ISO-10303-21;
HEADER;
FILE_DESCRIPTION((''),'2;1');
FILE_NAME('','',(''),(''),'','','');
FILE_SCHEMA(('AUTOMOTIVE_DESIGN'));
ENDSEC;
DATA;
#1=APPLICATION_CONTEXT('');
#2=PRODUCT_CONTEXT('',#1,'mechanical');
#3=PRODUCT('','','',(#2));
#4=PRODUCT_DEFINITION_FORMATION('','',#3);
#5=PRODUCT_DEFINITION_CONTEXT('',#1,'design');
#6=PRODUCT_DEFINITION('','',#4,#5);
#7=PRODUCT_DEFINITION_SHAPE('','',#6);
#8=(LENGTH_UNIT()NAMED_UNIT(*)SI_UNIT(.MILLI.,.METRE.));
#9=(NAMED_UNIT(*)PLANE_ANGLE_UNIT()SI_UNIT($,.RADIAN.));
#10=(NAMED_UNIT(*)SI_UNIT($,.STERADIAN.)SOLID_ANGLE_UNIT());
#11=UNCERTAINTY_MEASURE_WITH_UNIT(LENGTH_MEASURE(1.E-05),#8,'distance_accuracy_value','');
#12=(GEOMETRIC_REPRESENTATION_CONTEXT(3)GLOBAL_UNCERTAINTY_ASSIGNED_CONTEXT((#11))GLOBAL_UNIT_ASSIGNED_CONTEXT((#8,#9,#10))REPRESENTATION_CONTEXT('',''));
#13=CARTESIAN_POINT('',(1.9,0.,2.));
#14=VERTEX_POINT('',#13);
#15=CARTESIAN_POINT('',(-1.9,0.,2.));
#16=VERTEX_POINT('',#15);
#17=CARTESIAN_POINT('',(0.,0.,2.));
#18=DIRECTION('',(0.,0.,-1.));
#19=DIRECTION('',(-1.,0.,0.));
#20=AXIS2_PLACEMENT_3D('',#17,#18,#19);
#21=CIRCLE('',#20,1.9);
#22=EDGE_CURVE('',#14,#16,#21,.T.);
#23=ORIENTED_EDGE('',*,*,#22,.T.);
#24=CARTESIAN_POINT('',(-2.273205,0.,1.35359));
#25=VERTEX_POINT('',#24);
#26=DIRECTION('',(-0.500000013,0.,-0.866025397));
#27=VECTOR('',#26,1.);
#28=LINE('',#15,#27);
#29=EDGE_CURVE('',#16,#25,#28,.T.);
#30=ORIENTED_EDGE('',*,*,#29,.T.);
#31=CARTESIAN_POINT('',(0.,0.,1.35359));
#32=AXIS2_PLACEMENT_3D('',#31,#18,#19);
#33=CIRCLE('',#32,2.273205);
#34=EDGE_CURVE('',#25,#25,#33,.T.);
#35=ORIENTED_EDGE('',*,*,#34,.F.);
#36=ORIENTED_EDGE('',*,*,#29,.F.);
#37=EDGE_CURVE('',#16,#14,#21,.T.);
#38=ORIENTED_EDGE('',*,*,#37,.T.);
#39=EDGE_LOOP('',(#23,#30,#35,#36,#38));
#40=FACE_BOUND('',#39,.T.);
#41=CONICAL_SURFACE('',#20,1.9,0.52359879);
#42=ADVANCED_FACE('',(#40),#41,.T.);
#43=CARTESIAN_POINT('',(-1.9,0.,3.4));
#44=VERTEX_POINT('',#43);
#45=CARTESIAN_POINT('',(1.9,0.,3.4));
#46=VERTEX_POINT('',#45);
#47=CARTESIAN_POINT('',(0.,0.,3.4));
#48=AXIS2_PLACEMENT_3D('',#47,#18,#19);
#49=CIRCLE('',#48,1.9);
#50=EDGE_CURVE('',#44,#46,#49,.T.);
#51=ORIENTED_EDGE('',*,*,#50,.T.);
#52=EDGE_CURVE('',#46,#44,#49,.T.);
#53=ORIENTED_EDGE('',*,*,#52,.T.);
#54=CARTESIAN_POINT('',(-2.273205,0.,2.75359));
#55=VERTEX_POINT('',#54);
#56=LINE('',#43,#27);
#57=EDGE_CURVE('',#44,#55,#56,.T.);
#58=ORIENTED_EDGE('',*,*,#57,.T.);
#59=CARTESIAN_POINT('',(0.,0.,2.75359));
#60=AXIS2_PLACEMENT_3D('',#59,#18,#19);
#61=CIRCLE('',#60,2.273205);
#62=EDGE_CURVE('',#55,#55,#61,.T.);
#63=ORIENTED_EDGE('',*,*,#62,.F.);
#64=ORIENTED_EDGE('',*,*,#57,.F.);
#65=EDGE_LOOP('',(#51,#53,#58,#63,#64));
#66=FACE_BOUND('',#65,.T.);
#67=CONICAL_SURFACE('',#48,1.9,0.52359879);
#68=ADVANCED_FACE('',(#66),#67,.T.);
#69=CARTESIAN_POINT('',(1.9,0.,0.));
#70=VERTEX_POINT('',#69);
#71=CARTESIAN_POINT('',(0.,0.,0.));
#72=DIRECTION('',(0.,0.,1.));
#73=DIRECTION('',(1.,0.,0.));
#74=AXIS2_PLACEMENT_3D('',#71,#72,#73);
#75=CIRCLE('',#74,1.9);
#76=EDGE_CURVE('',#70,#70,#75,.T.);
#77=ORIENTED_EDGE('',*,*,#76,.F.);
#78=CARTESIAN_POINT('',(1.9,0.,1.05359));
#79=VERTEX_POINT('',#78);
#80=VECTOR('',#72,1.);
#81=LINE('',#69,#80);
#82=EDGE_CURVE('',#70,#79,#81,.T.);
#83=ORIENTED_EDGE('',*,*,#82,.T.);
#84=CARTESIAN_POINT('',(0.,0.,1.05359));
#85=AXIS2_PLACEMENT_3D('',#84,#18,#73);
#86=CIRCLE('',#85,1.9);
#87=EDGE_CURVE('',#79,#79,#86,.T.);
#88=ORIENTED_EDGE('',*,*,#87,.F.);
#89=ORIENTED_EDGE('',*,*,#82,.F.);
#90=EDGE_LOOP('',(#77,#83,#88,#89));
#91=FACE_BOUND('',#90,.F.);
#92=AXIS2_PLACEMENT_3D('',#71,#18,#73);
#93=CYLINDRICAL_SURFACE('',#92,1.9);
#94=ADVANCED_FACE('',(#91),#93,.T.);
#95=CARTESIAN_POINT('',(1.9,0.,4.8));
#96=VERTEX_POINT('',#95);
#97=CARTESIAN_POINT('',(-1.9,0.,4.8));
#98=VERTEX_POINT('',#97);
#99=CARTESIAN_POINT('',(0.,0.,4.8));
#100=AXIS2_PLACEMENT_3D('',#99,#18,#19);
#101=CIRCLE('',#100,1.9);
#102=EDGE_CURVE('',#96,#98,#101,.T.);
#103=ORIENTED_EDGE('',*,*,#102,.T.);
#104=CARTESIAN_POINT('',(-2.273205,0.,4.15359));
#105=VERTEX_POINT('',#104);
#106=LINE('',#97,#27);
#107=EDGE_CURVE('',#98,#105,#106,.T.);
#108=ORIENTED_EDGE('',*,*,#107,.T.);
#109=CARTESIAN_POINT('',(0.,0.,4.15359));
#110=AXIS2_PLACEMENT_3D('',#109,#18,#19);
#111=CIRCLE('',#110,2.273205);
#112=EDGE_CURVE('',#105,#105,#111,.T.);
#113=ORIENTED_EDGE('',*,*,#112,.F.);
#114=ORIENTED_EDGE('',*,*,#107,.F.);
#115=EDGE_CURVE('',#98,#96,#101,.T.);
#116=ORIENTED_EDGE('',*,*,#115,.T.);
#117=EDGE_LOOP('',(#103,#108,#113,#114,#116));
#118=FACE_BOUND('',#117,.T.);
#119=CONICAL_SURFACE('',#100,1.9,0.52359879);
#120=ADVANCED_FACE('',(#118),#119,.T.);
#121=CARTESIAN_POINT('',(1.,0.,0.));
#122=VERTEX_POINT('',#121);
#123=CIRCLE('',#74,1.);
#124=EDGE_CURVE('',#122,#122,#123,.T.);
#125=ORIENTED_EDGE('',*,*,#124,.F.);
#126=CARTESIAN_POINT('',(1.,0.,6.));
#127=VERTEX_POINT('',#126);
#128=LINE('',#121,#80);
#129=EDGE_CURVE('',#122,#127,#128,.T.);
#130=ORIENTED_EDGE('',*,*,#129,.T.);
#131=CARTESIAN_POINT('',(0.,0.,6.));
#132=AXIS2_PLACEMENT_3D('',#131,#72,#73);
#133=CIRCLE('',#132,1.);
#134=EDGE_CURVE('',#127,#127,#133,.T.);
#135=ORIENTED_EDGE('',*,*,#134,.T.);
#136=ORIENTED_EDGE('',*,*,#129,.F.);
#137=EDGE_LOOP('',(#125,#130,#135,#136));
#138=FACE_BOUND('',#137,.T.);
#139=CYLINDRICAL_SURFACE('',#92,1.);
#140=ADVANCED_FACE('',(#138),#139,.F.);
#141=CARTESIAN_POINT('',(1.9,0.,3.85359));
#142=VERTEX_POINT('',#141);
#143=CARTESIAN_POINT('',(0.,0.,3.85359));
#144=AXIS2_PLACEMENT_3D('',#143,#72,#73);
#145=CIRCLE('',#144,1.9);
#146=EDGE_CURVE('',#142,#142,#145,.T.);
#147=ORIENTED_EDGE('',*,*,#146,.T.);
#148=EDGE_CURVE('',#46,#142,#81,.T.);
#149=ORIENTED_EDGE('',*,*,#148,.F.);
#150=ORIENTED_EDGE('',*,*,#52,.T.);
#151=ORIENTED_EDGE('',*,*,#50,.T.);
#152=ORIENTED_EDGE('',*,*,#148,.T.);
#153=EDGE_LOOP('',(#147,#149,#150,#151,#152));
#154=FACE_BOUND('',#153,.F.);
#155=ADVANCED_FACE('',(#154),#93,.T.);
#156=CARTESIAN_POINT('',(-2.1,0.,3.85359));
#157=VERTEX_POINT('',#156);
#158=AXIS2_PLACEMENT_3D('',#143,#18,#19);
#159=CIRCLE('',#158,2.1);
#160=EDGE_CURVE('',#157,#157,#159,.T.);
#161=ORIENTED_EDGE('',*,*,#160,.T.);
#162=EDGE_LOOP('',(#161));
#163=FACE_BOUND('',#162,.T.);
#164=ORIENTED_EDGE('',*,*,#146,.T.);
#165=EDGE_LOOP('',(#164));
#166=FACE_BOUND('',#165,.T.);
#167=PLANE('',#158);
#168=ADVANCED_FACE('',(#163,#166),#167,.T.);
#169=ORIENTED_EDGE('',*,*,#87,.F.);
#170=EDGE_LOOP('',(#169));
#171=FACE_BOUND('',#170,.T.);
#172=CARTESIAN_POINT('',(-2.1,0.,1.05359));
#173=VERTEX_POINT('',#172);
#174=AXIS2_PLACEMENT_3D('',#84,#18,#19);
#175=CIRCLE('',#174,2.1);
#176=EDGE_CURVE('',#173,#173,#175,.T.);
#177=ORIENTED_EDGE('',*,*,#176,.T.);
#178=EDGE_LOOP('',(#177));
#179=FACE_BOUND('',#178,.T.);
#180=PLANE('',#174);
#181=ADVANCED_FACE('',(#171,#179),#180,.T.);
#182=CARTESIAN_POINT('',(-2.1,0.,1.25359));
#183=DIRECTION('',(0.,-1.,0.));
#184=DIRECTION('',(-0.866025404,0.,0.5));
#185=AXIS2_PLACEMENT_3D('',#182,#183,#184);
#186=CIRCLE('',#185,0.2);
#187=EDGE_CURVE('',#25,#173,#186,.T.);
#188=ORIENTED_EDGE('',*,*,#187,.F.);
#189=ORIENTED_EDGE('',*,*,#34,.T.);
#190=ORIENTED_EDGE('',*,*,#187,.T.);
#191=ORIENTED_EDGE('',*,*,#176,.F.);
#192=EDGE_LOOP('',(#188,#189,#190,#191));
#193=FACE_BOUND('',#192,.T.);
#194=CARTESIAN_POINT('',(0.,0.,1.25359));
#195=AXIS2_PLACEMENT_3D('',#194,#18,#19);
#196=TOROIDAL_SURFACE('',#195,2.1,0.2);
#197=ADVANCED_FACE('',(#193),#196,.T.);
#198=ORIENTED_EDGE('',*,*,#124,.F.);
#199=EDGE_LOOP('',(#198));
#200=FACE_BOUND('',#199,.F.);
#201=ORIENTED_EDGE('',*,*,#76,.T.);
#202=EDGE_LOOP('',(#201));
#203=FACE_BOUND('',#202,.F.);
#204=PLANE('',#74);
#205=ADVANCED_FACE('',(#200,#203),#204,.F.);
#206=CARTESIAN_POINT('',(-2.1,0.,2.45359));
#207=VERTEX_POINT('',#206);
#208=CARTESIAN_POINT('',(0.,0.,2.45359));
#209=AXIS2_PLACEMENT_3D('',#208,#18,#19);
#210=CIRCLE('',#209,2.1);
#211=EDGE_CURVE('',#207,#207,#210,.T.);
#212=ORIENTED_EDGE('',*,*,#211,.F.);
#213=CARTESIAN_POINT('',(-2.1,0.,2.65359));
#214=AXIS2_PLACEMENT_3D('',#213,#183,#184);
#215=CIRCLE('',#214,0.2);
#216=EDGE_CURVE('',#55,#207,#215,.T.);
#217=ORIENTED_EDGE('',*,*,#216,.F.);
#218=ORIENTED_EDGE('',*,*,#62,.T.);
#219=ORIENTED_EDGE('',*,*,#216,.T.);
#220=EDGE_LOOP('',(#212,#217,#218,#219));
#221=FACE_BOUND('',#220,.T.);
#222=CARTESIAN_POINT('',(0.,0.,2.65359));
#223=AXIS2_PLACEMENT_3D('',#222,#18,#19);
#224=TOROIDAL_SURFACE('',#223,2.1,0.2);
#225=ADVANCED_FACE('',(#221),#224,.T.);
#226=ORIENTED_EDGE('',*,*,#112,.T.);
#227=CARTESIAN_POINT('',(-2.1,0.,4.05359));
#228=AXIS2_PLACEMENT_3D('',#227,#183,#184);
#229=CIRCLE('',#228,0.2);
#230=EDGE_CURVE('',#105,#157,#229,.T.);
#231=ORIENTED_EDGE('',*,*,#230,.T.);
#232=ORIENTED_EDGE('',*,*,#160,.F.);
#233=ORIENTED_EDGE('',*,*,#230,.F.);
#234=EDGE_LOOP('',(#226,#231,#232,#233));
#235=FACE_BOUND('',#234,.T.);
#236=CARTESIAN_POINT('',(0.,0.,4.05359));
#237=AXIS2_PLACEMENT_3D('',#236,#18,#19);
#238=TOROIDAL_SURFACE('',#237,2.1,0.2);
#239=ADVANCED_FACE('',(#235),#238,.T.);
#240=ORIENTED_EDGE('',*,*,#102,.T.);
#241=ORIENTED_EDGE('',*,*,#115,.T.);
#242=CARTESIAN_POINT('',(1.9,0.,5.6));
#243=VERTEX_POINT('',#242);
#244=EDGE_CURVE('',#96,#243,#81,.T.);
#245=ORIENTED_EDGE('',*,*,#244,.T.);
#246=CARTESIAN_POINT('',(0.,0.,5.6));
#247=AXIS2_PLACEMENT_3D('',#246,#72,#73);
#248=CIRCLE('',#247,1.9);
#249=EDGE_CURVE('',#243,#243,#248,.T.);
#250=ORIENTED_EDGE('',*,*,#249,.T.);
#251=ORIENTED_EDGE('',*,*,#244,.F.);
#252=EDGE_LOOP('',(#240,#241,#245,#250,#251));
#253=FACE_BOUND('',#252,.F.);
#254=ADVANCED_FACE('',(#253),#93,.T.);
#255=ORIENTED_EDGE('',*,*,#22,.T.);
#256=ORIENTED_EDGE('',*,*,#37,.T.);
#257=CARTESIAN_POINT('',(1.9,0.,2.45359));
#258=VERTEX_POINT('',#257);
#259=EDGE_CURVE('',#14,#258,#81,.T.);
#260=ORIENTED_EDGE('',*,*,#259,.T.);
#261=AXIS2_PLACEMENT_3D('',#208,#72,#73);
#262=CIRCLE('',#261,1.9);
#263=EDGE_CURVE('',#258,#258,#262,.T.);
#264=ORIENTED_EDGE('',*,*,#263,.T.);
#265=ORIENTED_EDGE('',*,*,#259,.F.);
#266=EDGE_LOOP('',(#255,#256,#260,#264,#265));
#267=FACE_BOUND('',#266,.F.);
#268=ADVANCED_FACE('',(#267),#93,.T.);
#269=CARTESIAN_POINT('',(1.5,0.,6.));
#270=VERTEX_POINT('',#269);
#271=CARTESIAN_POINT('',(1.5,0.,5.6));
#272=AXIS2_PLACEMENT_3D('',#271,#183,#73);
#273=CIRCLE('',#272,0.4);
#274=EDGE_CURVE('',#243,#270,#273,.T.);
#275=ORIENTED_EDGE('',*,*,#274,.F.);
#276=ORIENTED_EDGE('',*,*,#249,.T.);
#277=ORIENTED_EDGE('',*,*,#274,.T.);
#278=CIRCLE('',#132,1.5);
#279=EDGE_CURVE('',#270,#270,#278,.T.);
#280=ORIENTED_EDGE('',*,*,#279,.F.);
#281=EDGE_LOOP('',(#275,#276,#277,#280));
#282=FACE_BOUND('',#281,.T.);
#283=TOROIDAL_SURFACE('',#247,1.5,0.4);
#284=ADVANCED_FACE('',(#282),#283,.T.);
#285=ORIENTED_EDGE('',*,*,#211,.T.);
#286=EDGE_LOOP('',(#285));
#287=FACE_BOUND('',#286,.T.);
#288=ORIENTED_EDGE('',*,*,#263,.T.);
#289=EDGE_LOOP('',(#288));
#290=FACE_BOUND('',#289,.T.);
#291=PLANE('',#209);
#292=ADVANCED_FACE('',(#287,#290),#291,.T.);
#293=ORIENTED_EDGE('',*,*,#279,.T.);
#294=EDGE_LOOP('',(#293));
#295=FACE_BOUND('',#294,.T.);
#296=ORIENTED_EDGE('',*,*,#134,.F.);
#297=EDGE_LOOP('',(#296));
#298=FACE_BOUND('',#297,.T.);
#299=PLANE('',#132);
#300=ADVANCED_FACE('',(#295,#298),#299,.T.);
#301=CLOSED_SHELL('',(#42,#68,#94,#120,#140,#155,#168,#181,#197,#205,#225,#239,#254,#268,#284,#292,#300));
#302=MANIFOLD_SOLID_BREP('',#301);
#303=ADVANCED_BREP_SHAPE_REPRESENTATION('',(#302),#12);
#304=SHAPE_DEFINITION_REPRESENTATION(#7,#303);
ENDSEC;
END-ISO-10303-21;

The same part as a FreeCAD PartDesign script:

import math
import FreeCAD as App
import Part
import Sketcher

V = App.Vector
Q = App.Units.Quantity


def edges_at(feature, points):
    """Names of the edges that pass closest to the given points."""
    edges = feature.Shape.Edges
    near = lambda p: min(range(len(edges)), key=lambda i: edges[i].distToShape(Part.Vertex(*p))[0])
    return sorted({f"Edge{near(p) + 1}" for p in points})

doc = App.newDocument("Part")
body = doc.addObject("PartDesign::Body", "Body")

sketch1 = body.newObject("Sketcher::SketchObject", "Sketch")
sketch1.AttachmentSupport = (doc.getObject("XY_Plane"), [""])
sketch1.MapMode = "FlatFace"
sketch1.addGeometry([
    Part.Circle(V(0, 0, 0), V(0, 0, 1), 1.9),
    Part.Circle(V(0, 0, 0), V(0, 0, 1), 1),
], False)
sketch1.addConstraint([
    Sketcher.Constraint("Coincident", 0, 3, -1, 1),
    Sketcher.Constraint("Coincident", 1, 3, -1, 1),
    Sketcher.Constraint("Diameter", 1, Q("2 mm")),
    Sketcher.Constraint("Diameter", 0, Q("3.8 mm")),
])
pad1 = body.newObject("PartDesign::Pad", "Pad")
pad1.Profile = sketch1
pad1.Length = 6
doc.recompute()

fillet = body.newObject("PartDesign::Fillet", "Fillet")
fillet.Base = (pad1, edges_at(pad1, [(-1.9, 0, 6)]))
fillet.Radius = 0.4

sketch2 = body.newObject("Sketcher::SketchObject", "Sketch001")
sketch2.AttachmentSupport = (doc.getObject("XZ_Plane"), [""])
sketch2.MapMode = "FlatFace"
sketch2.addGeometry([
    Part.LineSegment(V(-1.9, 3.85, 0), V(-1.9, 4.8, 0)),
    Part.LineSegment(V(-1.9, 4.8, 0), V(-2.27, 4.15, 0)),
    Part.ArcOfCircle(Part.Circle(V(-2.1, 4.05, 0), V(0, 0, 1), 0.2), math.radians(150), math.radians(270)),
    Part.LineSegment(V(-2.1, 3.85, 0), V(-1.9, 3.85, 0)),
    Part.LineSegment(V(-2.1, 2.45, 0), V(-1.9, 2.45, 0)),
    Part.LineSegment(V(-1.9, 2.45, 0), V(-1.9, 3.4, 0)),
    Part.LineSegment(V(-1.9, 3.4, 0), V(-2.27, 2.75, 0)),
    Part.ArcOfCircle(Part.Circle(V(-2.1, 2.65, 0), V(0, 0, 1), 0.2), math.radians(150), math.radians(270)),
    Part.LineSegment(V(-2.1, 1.05, 0), V(-1.9, 1.05, 0)),
    Part.LineSegment(V(-1.9, 1.05, 0), V(-1.9, 2, 0)),
    Part.LineSegment(V(-1.9, 2, 0), V(-2.27, 1.35, 0)),
    Part.ArcOfCircle(Part.Circle(V(-2.1, 1.25, 0), V(0, 0, 1), 0.2), math.radians(150), math.radians(270)),
], False)
sketch2.addConstraint([
    Sketcher.Constraint("Coincident", 0, 2, 1, 1),
    Sketcher.Constraint("Tangent", 1, 2, 2, 1),
    Sketcher.Constraint("Tangent", 2, 2, 3, 1),
    Sketcher.Constraint("Coincident", 3, 2, 0, 1),
    Sketcher.Constraint("Coincident", 4, 2, 5, 1),
    Sketcher.Constraint("Coincident", 5, 2, 6, 1),
    Sketcher.Constraint("Tangent", 6, 2, 7, 1),
    Sketcher.Constraint("Tangent", 7, 2, 4, 1),
    Sketcher.Constraint("Coincident", 8, 2, 9, 1),
    Sketcher.Constraint("Coincident", 9, 2, 10, 1),
    Sketcher.Constraint("Tangent", 10, 2, 11, 1),
    Sketcher.Constraint("Tangent", 11, 2, 8, 1),
    Sketcher.Constraint("Vertical", 0),
    Sketcher.Constraint("Horizontal", 3),
    Sketcher.Constraint("Horizontal", 4),
    Sketcher.Constraint("Vertical", 5),
    Sketcher.Constraint("Horizontal", 8),
    Sketcher.Constraint("Vertical", 9),
    Sketcher.Constraint("Equal", 2, 7),
    Sketcher.Constraint("Equal", 7, 11),
    Sketcher.Constraint("Parallel", 1, 6),
    Sketcher.Constraint("Parallel", 6, 10),
    Sketcher.Constraint("Vertical", 2, 3, 7, 3),
    Sketcher.Constraint("Vertical", 7, 3, 11, 3),
    Sketcher.Constraint("Vertical", 3, 2, 4, 2),
    Sketcher.Constraint("Vertical", 5, 2, 8, 2),
    Sketcher.Constraint("Radius", 2, Q("0.2 mm")),
    Sketcher.Constraint("Angle", 1, Q("-120.000001 deg")),
    Sketcher.Constraint("DistanceX", 3, 1, 3, 2, Q("0.2 mm")),
    Sketcher.Constraint("DistanceY", -1, 1, 9, 2, Q("2 mm")),
    Sketcher.Constraint("DistanceX", 2, 3, -1, 1, Q("2.1 mm")),
    Sketcher.Constraint("DistanceY", -1, 1, 0, 2, Q("4.8 mm")),
    Sketcher.Constraint("DistanceY", -1, 1, 5, 2, Q("3.4 mm")),
])
revolution = body.newObject("PartDesign::Revolution", "Revolution")
revolution.Profile = sketch2
revolution.ReferenceAxis = (sketch2, ["V_Axis"])
revolution.Angle = 360

doc.recompute()
